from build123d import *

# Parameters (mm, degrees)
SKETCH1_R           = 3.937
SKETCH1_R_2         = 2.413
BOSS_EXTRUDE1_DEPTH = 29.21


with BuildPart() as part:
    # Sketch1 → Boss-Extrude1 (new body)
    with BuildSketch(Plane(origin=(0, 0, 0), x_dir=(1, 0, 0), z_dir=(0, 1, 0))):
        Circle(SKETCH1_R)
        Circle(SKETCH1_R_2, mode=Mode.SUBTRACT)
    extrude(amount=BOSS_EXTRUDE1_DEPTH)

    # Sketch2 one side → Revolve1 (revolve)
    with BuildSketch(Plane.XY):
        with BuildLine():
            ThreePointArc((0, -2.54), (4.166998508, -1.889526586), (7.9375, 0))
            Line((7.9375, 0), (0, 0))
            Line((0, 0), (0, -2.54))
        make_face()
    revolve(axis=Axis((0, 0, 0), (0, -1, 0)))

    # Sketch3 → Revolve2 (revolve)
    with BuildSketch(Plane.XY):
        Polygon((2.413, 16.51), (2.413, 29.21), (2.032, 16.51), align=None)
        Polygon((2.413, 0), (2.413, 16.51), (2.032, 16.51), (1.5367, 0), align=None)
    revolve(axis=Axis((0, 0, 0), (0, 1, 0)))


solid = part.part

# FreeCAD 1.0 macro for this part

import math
import FreeCAD as App
import Part
import Sketcher
from FreeCAD import Vector
Q = App.Units.Quantity


def add_polygon(sketch, points):
    """Adds a closed chain of lines whose ends are joined by coincident constraints."""
    first, n = sketch.GeometryCount, len(points)
    for a, b in zip(points, points[1:] + points[:1]):
        sketch.addGeometry(Part.LineSegment(App.Vector(*a, 0), App.Vector(*b, 0)), False)
    for i in range(n):
        sketch.addConstraint(Sketcher.Constraint("Coincident", first + i, 2, first + (i + 1) % n, 1))

doc = App.newDocument("Part")
body = doc.addObject("PartDesign::Body", "Body")

sketch1 = doc.addObject("Sketcher::SketchObject", "Sketch")
body.addObject(sketch1)
sketch1.AttachmentSupport = (doc.XZ_Plane, [""])
sketch1.MapMode = "FlatFace"
sketch1.addGeometry([
    Part.Circle(Vector(0, 0, 0), Vector(0, 0, 1), 3.9),
    Part.Circle(Vector(0, 0, 0), Vector(0, 0, 1), 2.4),
], False)
sketch1.addConstraint([
    Sketcher.Constraint("Coincident", 0, 3, -1, 1),
    Sketcher.Constraint("Coincident", 1, 3, -1, 1),
    Sketcher.Constraint("Diameter", 0, Q("0.31 in")),
    Sketcher.Constraint("Diameter", 1, Q("0.19 in")),
])
pad1 = doc.addObject("PartDesign::Pad", "Pad")
body.addObject(pad1)
pad1.Profile = sketch1
pad1.Length = Q("1.15 in")
pad1.Reversed = True

sketch2 = doc.addObject("Sketcher::SketchObject", "Sketch001")
body.addObject(sketch2)
sketch2.AttachmentSupport = (doc.XY_Plane, [""])
sketch2.MapMode = "FlatFace"
sketch2.addGeometry([
    Part.ArcOfCircle(Part.Circle(Vector(0, 11.1, 0), Vector(0, 0, 1), 13.7), math.radians(-90), math.radians(-55)),
    Part.LineSegment(Vector(7.9, 0, 0), Vector(0, 0, 0)),
    Part.LineSegment(Vector(0, 0, 0), Vector(0, -2.5, 0)),
], False)
sketch2.addConstraint([
    Sketcher.Constraint("Coincident", 0, 2, 1, 1),
    Sketcher.Constraint("Coincident", 1, 2, 2, 1),
    Sketcher.Constraint("Coincident", 2, 2, 0, 1),
    Sketcher.Constraint("Horizontal", 1),
    Sketcher.Constraint("Vertical", 2),
    Sketcher.Constraint("Coincident", 1, 2, -1, 1),
    Sketcher.Constraint("PointOnObject", 0, 3, -2),
    Sketcher.Constraint("DistanceY", 2, 2, 2, 1, Q("0.1 in")),
    Sketcher.Constraint("DistanceX", 1, 2, 1, 1, Q("0.3125 in")),
])
revolution = doc.addObject("PartDesign::Revolution", "Revolution")
body.addObject(revolution)
revolution.Profile = sketch2
revolution.ReferenceAxis = (sketch2, ["V_Axis"])
revolution.Angle = 360

sketch3 = doc.addObject("Sketcher::SketchObject", "Sketch002")
body.addObject(sketch3)
sketch3.AttachmentSupport = (doc.XY_Plane, [""])
sketch3.MapMode = "FlatFace"
add_polygon(sketch3, [(2.4, 29.2), (1.5, 0), (2.4, 0)])
sketch3.addConstraint([
    Sketcher.Constraint("Horizontal", 1),
    Sketcher.Constraint("Vertical", 2),
    Sketcher.Constraint("PointOnObject", 0, 2, -1),
    Sketcher.Constraint("DistanceY", 2, 1, 2, 2, Q("1.15 in")),
    Sketcher.Constraint("DistanceX", 1, 1, 1, 2, Q("0.0345 in")),
    Sketcher.Constraint("DistanceX", -1, 1, 1, 2, Q("0.095 in")),
])
revolution2 = doc.addObject("PartDesign::Revolution", "Revolution001")
body.addObject(revolution2)
revolution2.Profile = sketch3
revolution2.ReferenceAxis = (sketch3, ["V_Axis"])
revolution2.Angle = 360

doc.recompute()
